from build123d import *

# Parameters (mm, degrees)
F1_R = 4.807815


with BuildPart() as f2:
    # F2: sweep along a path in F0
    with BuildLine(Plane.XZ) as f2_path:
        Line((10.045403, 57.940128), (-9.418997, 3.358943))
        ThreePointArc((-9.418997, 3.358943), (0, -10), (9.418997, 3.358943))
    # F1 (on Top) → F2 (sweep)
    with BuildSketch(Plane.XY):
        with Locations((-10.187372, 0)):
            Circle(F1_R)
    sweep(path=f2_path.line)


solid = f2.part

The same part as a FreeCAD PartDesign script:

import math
import FreeCAD as App
import Part
import Sketcher
Q = App.Units.Quantity

doc = App.newDocument("Part")
params = doc.addObject("Spreadsheet::Sheet", "Params")
for row, (alias, value) in enumerate([
    ("sketch2_radius", "10 mm"),
], start=1):
    params.set(f"A{row}", alias)
    params.set(f"B{row}", "=" + value)
    params.setAlias(f"B{row}", alias)

body = doc.addObject("PartDesign::Body", "Body")

# Sketch on XY plane
sketch1 = doc.addObject("Sketcher::SketchObject", "Sketch")
body.addObject(sketch1)
sketch1.AttachmentSupport = (doc.XY_Plane, [""])
sketch1.MapMode = "FlatFace"
sketch1.addGeometry(Part.Circle(App.Vector(-10.2, 0, 0), App.Vector(0, 0, 1), 4.8), False)
sketch1.addConstraint(Sketcher.Constraint("PointOnObject", 0, 3, -1))
sketch1.addConstraint(Sketcher.Constraint("Diameter", 0, Q("9.61563 mm")))
sketch1.addConstraint(Sketcher.Constraint("DistanceX", 0, 3, -1, 1, Q("10.187372 mm")))

# Sketch on XZ plane
sketch2 = doc.addObject("Sketcher::SketchObject", "Sketch001")
body.addObject(sketch2)
sketch2.AttachmentSupport = (doc.XZ_Plane, [""])
sketch2.MapMode = "FlatFace"
sketch2.addGeometry(Part.LineSegment(App.Vector(10, 58, 0), App.Vector(-9, 3, 0)), False)
sketch2.addGeometry(Part.ArcOfCircle(Part.Circle(App.Vector(0, 0, 0), App.Vector(0, 0, 1), 10), math.radians(160), math.radians(380)), False)
sketch2.addConstraint(Sketcher.Constraint("Tangent", 0, 2, 1, 1))
sketch2.addConstraint(Sketcher.Constraint("Coincident", 1, 3, -1, 1))
sketch2.addConstraint(Sketcher.Constraint("Horizontal", 0, 2, 1, 2))
sketch2.addConstraint(Sketcher.Constraint("Radius", 1, Q("10 mm")))
sketch2.addConstraint(Sketcher.Constraint("DistanceX", 0, 2, 0, 1, Q("19.4644 mm")))
sketch2.addConstraint(Sketcher.Constraint("Distance", 0, Q("57.947982 mm")))
sketch2.setExpression("Constraints[3]", "Params.sketch2_radius")
doc.recompute()

additivepipe = doc.addObject("PartDesign::AdditivePipe", "AdditivePipe")
body.addObject(additivepipe)
additivepipe.Profile = sketch1
additivepipe.Spine = (sketch2, ["Edge1", "Edge2"])

doc.recompute()
